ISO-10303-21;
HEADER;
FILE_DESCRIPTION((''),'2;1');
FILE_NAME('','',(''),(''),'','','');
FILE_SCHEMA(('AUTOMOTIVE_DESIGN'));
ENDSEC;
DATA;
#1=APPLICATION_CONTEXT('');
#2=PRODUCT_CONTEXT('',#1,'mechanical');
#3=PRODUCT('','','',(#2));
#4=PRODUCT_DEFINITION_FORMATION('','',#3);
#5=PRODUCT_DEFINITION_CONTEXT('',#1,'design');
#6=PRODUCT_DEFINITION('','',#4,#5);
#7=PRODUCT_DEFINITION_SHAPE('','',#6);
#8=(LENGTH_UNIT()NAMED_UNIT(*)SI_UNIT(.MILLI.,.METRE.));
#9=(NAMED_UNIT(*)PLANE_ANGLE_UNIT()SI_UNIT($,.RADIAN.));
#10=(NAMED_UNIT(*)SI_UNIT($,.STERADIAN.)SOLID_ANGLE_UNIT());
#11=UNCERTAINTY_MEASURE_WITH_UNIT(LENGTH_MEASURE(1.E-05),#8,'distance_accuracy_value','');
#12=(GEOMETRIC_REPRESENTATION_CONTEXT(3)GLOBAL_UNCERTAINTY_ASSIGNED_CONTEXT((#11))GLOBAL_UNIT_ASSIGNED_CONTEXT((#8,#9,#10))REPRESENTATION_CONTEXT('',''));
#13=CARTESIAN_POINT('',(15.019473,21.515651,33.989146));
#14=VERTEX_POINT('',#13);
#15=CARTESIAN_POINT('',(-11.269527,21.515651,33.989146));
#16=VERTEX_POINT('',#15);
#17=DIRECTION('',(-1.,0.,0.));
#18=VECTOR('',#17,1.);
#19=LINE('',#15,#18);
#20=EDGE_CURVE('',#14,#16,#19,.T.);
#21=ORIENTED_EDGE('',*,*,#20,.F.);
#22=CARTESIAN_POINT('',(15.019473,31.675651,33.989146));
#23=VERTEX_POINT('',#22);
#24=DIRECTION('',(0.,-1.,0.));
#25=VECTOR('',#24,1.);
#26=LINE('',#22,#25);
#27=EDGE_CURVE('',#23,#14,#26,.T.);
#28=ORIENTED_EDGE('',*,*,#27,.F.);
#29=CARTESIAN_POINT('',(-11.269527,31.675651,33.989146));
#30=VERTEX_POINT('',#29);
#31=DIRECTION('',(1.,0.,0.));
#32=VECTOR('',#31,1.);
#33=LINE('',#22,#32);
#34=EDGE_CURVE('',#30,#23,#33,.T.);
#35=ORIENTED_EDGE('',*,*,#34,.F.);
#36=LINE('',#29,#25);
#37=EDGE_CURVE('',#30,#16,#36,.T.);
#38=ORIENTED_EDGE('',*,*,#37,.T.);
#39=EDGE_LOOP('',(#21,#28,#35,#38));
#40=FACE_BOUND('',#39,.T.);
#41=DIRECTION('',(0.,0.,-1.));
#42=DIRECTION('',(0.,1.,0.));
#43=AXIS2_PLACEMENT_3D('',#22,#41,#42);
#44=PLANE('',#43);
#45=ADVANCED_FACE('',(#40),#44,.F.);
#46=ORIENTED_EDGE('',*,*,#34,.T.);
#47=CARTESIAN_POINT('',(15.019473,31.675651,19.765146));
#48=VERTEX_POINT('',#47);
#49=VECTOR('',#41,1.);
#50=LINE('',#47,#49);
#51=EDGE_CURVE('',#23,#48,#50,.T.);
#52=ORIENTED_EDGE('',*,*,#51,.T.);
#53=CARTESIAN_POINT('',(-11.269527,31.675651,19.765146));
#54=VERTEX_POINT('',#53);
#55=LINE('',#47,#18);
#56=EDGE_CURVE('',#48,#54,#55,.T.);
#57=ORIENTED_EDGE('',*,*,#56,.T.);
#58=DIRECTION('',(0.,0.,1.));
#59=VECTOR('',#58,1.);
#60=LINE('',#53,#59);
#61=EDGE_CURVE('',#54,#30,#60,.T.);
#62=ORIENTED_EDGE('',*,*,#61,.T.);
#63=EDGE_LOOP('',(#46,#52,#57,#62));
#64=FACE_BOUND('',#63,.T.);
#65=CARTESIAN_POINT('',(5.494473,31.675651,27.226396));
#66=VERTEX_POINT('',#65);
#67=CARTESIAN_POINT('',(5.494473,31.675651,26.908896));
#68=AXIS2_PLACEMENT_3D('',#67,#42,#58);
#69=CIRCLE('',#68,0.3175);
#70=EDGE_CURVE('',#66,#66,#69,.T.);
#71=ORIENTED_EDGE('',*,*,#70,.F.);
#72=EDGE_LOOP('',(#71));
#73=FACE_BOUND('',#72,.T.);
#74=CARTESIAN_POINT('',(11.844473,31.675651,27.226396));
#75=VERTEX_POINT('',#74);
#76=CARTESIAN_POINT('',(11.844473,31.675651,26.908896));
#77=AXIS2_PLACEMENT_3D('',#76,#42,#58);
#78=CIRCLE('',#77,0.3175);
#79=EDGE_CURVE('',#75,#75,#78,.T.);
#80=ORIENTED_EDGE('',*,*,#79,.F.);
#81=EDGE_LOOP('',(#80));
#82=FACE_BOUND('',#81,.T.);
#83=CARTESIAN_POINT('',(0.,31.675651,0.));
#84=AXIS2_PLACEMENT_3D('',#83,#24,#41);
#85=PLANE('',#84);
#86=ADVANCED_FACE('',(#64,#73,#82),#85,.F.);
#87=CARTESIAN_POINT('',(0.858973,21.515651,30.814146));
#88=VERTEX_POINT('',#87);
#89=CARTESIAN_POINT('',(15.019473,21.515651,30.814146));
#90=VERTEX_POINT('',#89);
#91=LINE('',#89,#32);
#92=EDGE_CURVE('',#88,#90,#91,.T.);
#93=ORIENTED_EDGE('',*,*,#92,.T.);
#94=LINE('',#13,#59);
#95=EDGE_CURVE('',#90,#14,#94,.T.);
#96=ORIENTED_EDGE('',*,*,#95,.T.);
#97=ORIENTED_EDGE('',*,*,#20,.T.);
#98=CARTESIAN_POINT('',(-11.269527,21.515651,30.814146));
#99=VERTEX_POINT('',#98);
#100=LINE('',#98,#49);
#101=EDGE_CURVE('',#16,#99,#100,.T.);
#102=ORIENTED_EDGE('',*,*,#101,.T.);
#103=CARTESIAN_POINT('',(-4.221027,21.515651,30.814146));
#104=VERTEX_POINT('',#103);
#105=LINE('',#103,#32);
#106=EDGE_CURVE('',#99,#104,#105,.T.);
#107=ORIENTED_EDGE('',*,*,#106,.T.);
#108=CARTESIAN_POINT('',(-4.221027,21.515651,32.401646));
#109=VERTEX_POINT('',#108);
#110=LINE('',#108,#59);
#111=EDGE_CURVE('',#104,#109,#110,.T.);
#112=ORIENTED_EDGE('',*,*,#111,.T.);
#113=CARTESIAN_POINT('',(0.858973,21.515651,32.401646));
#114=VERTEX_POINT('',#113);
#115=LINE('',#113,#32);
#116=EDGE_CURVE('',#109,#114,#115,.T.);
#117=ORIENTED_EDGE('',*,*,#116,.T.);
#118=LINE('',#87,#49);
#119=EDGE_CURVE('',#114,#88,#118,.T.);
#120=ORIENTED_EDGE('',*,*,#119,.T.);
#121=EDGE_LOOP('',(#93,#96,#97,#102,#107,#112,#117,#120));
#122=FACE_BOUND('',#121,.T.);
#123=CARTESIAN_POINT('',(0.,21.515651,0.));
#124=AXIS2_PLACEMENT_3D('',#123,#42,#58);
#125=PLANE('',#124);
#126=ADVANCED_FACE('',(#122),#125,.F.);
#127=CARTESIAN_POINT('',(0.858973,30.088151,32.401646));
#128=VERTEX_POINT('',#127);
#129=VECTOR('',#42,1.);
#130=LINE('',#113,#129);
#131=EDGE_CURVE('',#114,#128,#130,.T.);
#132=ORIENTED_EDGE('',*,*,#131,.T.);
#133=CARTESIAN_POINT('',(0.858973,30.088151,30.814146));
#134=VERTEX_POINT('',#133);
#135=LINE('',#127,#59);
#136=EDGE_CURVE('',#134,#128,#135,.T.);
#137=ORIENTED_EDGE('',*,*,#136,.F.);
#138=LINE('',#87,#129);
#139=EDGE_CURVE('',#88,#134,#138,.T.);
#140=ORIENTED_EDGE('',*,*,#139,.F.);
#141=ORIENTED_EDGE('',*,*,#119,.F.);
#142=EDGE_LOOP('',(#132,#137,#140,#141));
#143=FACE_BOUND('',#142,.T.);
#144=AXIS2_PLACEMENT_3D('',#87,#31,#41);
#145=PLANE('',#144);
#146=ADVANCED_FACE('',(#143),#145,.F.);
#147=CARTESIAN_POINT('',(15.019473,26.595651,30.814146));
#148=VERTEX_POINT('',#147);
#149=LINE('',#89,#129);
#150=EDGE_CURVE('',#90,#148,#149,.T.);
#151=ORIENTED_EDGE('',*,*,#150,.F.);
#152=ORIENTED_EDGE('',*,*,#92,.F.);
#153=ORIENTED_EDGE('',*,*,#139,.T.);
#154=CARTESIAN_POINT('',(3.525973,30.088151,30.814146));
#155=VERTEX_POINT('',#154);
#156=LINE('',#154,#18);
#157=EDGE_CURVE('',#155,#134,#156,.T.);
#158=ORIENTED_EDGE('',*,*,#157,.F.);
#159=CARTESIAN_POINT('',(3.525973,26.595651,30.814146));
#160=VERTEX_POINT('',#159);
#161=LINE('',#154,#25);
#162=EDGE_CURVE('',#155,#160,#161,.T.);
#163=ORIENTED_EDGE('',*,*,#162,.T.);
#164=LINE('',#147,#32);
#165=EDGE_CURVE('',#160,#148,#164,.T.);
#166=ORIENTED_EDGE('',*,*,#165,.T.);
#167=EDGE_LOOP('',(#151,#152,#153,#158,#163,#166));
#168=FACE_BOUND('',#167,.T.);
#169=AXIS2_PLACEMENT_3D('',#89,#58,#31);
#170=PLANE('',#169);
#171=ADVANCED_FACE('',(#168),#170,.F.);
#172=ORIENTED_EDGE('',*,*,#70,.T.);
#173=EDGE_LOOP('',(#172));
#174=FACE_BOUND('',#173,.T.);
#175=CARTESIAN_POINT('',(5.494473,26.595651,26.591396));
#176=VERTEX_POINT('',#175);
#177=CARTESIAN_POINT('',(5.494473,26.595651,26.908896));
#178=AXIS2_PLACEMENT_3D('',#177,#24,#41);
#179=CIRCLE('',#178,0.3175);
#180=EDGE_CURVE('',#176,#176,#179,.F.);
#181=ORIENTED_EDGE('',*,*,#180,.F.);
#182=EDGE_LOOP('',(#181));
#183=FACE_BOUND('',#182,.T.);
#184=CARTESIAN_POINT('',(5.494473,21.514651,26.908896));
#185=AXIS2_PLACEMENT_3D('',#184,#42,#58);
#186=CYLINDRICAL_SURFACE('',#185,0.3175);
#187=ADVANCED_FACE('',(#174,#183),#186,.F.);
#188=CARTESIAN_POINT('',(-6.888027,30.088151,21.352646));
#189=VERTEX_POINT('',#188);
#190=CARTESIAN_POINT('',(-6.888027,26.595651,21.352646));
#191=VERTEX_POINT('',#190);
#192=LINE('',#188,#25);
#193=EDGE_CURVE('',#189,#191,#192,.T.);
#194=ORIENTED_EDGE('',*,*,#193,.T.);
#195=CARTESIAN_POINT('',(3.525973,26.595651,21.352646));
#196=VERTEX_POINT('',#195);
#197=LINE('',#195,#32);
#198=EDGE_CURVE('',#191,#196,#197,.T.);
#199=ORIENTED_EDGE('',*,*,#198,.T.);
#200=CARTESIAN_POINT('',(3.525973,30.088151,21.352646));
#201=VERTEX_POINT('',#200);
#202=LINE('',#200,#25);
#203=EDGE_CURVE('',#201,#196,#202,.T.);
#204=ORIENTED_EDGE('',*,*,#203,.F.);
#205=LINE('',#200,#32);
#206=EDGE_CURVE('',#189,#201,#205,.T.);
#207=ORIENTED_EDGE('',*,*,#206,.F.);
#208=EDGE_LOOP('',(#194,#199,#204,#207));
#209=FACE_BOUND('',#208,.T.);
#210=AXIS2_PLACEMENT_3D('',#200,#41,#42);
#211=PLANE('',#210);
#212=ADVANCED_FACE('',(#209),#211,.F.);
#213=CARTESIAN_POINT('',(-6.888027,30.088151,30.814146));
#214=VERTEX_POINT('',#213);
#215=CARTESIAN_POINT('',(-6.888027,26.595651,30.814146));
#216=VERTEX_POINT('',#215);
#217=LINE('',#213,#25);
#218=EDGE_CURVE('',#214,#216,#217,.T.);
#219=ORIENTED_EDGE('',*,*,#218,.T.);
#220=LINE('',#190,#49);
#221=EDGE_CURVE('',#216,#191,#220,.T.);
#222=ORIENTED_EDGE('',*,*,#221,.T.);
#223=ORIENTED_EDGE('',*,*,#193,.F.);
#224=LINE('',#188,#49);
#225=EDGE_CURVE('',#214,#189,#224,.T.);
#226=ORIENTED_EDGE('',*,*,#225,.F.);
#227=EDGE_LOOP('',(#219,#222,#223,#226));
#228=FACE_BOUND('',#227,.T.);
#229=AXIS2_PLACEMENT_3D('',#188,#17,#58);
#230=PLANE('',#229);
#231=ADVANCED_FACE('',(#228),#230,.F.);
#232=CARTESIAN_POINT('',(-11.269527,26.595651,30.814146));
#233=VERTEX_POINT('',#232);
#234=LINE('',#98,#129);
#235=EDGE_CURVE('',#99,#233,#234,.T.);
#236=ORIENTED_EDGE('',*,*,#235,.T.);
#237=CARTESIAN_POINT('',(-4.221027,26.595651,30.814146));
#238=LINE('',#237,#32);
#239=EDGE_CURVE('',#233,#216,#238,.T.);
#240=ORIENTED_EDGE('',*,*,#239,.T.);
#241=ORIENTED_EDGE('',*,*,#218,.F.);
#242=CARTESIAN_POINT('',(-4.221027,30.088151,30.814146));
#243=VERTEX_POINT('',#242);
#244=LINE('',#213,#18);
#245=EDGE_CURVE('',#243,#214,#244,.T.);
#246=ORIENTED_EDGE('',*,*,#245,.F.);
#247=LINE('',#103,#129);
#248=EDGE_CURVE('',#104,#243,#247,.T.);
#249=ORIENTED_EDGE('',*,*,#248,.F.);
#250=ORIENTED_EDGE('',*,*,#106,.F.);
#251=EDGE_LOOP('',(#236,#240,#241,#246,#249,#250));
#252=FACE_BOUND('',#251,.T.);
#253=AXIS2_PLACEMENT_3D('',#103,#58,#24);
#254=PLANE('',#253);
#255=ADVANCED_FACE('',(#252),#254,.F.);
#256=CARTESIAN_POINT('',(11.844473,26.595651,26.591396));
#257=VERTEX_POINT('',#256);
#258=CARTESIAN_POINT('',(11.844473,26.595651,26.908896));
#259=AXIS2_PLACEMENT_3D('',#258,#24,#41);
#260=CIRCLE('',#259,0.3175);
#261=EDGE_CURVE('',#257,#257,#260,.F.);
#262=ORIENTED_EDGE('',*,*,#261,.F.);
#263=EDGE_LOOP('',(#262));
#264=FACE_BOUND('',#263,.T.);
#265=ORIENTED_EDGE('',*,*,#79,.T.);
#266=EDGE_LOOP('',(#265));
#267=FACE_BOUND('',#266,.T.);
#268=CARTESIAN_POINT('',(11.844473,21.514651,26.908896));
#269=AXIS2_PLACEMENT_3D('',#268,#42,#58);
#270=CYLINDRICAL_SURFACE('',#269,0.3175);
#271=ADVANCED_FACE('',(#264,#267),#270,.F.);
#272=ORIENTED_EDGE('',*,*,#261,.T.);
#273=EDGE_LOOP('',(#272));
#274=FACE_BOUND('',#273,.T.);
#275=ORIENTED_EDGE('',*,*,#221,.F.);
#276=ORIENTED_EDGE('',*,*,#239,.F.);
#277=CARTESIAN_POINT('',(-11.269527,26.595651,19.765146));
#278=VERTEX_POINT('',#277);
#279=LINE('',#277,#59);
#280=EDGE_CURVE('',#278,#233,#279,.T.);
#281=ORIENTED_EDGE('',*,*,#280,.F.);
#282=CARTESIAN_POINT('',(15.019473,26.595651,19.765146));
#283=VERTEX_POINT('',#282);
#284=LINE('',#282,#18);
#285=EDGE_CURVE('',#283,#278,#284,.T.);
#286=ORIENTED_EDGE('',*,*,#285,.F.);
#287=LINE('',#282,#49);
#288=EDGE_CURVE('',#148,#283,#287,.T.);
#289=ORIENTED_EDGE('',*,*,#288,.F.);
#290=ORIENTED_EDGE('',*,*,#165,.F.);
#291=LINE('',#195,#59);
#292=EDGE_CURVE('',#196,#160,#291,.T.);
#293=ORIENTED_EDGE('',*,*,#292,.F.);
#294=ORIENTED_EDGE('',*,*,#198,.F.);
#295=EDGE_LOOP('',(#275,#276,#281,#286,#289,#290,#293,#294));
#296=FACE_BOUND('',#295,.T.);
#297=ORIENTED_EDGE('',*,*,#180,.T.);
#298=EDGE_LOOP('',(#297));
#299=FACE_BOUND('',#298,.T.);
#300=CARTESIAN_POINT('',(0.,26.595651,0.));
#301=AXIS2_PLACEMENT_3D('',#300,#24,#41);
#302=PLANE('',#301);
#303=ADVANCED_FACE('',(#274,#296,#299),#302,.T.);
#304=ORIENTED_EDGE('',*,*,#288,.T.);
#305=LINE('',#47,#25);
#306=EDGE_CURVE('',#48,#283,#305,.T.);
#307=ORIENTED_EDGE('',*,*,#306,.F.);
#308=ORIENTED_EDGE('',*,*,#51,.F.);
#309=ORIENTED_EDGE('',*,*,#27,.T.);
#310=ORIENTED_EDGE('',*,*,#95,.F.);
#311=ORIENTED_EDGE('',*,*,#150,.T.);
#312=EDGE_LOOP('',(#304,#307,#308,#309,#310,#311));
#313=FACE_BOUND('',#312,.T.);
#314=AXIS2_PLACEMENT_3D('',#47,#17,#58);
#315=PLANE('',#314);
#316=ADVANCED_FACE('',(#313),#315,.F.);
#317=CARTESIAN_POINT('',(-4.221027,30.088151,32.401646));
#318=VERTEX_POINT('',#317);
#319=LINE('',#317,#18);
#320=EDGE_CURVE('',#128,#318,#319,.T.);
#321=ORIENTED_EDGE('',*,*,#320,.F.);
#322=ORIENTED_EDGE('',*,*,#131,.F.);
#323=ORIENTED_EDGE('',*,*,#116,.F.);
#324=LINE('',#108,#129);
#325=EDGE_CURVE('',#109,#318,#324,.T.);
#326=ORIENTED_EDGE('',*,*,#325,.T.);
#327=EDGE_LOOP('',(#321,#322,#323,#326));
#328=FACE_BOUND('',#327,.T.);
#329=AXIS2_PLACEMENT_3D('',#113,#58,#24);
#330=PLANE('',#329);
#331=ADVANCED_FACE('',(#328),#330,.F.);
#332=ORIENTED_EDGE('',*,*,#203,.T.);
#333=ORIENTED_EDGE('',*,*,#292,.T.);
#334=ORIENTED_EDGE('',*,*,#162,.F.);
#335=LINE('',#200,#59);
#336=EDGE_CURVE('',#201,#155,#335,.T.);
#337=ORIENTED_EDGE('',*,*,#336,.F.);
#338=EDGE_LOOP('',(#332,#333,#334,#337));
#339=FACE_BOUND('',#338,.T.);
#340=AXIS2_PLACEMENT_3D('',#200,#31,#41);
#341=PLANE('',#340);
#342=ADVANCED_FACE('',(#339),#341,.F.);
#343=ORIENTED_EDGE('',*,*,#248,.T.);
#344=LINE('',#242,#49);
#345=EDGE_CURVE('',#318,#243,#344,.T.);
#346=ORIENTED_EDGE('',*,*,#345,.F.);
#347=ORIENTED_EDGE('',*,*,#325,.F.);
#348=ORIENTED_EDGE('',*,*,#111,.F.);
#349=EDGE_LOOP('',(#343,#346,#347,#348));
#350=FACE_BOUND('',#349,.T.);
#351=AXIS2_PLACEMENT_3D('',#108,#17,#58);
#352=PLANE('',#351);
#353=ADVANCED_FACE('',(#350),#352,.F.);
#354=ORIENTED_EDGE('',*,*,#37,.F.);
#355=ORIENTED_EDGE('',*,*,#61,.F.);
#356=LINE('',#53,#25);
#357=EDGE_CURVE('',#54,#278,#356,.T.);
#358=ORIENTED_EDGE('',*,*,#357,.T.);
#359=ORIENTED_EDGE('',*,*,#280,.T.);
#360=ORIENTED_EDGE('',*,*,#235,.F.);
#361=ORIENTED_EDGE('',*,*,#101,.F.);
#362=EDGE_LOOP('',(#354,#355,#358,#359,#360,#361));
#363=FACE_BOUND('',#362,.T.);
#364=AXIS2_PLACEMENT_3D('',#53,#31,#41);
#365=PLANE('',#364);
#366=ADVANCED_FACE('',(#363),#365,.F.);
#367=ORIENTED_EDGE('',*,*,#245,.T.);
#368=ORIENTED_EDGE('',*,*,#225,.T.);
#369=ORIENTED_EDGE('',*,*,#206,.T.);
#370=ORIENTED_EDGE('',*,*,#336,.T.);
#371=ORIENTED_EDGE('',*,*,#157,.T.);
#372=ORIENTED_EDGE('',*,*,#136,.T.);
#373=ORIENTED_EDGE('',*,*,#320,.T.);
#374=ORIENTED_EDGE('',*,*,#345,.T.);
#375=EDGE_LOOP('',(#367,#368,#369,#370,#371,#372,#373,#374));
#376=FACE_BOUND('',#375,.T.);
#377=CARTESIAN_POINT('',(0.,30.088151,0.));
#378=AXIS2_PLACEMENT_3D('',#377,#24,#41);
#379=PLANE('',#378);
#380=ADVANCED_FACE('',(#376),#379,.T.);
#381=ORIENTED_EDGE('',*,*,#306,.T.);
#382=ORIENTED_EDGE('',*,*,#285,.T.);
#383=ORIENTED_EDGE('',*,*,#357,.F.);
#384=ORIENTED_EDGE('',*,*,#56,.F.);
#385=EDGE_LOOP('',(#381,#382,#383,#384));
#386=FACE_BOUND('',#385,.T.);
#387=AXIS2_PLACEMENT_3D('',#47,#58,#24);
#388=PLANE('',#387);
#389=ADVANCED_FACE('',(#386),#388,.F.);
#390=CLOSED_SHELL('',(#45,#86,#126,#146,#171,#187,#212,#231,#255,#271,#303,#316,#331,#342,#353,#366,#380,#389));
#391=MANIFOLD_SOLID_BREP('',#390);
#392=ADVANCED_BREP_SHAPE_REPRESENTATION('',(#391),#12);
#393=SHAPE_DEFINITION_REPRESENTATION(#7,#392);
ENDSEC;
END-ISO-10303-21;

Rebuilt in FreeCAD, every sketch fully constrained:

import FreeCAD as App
import Part
import Sketcher
from FreeCAD import Vector
Q = App.Units.Quantity


def add_polygon(sketch, points):
    """Adds a closed chain of lines whose ends are joined by coincident constraints."""
    first, n = sketch.GeometryCount, len(points)
    for a, b in zip(points, points[1:] + points[:1]):
        sketch.addGeometry(Part.LineSegment(App.Vector(*a, 0), App.Vector(*b, 0)), False)
    for i in range(n):
        sketch.addConstraint(Sketcher.Constraint("Coincident", first + i, 2, first + (i + 1) % n, 1))

doc = App.newDocument("Part")
params = doc.addObject("Spreadsheet::Sheet", "Params")
for row, (alias, value) in enumerate([
    ("sketch1_height", "0.56 in"),
    ("sketch1_width", "1.035 in"),
    ("pad1_length", "0.2 in"),
    ("sketch2_width", "0.2 in"),
    ("sketch2_width2", "1.035 in"),
    ("sketch2_height", "0.125 in"),
    ("sketch2_height2", "0.0625 in"),
    ("pad2_length", "0.2 in"),
    ("sketch3_width", "0.2 in"),
    ("sketch3_width2", "0.41 in"),
    ("sketch3_height", "0.0625 in"),
    ("pocket1_length", "0.1375 in"),
    ("sketch4_diameter", "0.025 in"),
    ("sketch5_diameter", "0.025 in"),
], start=1):
    params.set(f"A{row}", alias)
    params.set(f"B{row}", "=" + value)
    params.setAlias(f"B{row}", alias)

body = doc.addObject("PartDesign::Body", "Body")

# Sketch on XZ plane
sketch1 = body.newObject("Sketcher::SketchObject", "Sketch")
sketch1.AttachmentSupport = (doc.getObject("XZ_Plane"), [""])
sketch1.MapMode = "FlatFace"
sketch1.AttachmentOffset = App.Placement(Vector(0, 0, -26.595651), App.Rotation())
add_polygon(sketch1, [(-11.269527, 19.765146), (-11.269527, 33.989146), (15.019473, 33.989146), (15.019473, 19.765146)])  # lines 0-3
sketch1.addConstraint(Sketcher.Constraint("Vertical", 0))
sketch1.addConstraint(Sketcher.Constraint("Horizontal", 1))
sketch1.addConstraint(Sketcher.Constraint("Vertical", 2))
sketch1.addConstraint(Sketcher.Constraint("Horizontal", 3))
sketch1.addConstraint(Sketcher.Constraint("DistanceY", 0, 1, 0, 2, Q("0.56 in")))
sketch1.addConstraint(Sketcher.Constraint("DistanceX", 1, 1, 1, 2, Q("1.035 in")))
sketch1.addConstraint(Sketcher.Constraint("DistanceX", 0, 2, -1, 1, 11.269527))
sketch1.addConstraint(Sketcher.Constraint("DistanceY", -1, 1, 0, 2, 33.989146))
sketch1.setExpression("Constraints[8]", "Params.sketch1_height")
sketch1.setExpression("Constraints[9]", "Params.sketch1_width")
pad1 = body.newObject("PartDesign::Pad", "Pad")
pad1.Profile = sketch1
pad1.setExpression("Length", "Params.pad1_length")
pad1.Reversed = True

# Sketch on XZ plane
sketch2 = body.newObject("Sketcher::SketchObject", "Sketch001")
sketch2.AttachmentSupport = (doc.getObject("XZ_Plane"), [""])
sketch2.MapMode = "FlatFace"
sketch2.AttachmentOffset = App.Placement(Vector(0, 0, -26.595651), App.Rotation())
add_polygon(sketch2, [(-11.269527, 33.989146), (-11.269527, 30.814146), (-4.221027, 30.814146), (-4.221027, 32.401646), (0.858973, 32.401646), (0.858973, 30.814146), (15.019473, 30.814146), (15.019473, 33.989146)])  # lines 0-7
sketch2.addConstraint(Sketcher.Constraint("Vertical", 0))
sketch2.addConstraint(Sketcher.Constraint("Horizontal", 1))
sketch2.addConstraint(Sketcher.Constraint("Vertical", 2))
sketch2.addConstraint(Sketcher.Constraint("Horizontal", 3))
sketch2.addConstraint(Sketcher.Constraint("Vertical", 4))
sketch2.addConstraint(Sketcher.Constraint("Horizontal", 5))
sketch2.addConstraint(Sketcher.Constraint("Vertical", 6))
sketch2.addConstraint(Sketcher.Constraint("Horizontal", 7))
sketch2.addConstraint(Sketcher.Constraint("Horizontal", 1, 2, 4, 2))
sketch2.addConstraint(Sketcher.Constraint("DistanceX", 3, 1, 3, 2, Q("0.2 in")))
sketch2.addConstraint(Sketcher.Constraint("DistanceX", 7, 2, 7, 1, Q("1.035 in")))
sketch2.addConstraint(Sketcher.Constraint("DistanceY", 0, 2, 0, 1, Q("0.125 in")))
sketch2.addConstraint(Sketcher.Constraint("DistanceY", 2, 1, 2, 2, Q("0.0625 in")))
sketch2.addConstraint(Sketcher.Constraint("DistanceX", 1, 1, 1, 2, Q("0.2775 in")))
sketch2.addConstraint(Sketcher.Constraint("DistanceX", 0, 2, -1, 1, 11.269527))
sketch2.addConstraint(Sketcher.Constraint("DistanceY", -1, 1, 0, 2, 30.814146))
sketch2.setExpression("Constraints[17]", "Params.sketch2_width")
sketch2.setExpression("Constraints[18]", "Params.sketch2_width2")
sketch2.setExpression("Constraints[19]", "Params.sketch2_height")
sketch2.setExpression("Constraints[20]", "Params.sketch2_height2")
pad2 = body.newObject("PartDesign::Pad", "Pad001")
pad2.Profile = sketch2
pad2.setExpression("Length", "Params.pad2_length")

# Sketch on XZ plane
sketch3 = body.newObject("Sketcher::SketchObject", "Sketch002")
sketch3.AttachmentSupport = (doc.getObject("XZ_Plane"), [""])
sketch3.MapMode = "FlatFace"
sketch3.AttachmentOffset = App.Placement(Vector(0, 0, -26.595651), App.Rotation())
add_polygon(sketch3, [(-4.221027, 32.401646), (-4.221027, 30.814146), (-6.888027, 30.814146), (-6.888027, 21.352646), (3.525973, 21.352646), (3.525973, 30.814146), (0.858973, 30.814146), (0.858973, 32.401646)])  # lines 0-7
sketch3.addConstraint(Sketcher.Constraint("Vertical", 0))
sketch3.addConstraint(Sketcher.Constraint("Horizontal", 1))
sketch3.addConstraint(Sketcher.Constraint("Vertical", 2))
sketch3.addConstraint(Sketcher.Constraint("Horizontal", 3))
sketch3.addConstraint(Sketcher.Constraint("Vertical", 4))
sketch3.addConstraint(Sketcher.Constraint("Horizontal", 5))
sketch3.addConstraint(Sketcher.Constraint("Vertical", 6))
sketch3.addConstraint(Sketcher.Constraint("Horizontal", 7))
sketch3.addConstraint(Sketcher.Constraint("Horizontal", 1, 2, 4, 2))
sketch3.addConstraint(Sketcher.Constraint("Equal", 1, 5))
sketch3.addConstraint(Sketcher.Constraint("DistanceX", 7, 2, 7, 1, Q("0.2 in")))
sketch3.addConstraint(Sketcher.Constraint("DistanceX", 3, 1, 3, 2, Q("0.41 in")))
sketch3.addConstraint(Sketcher.Constraint("DistanceY", 0, 2, 0, 1, Q("0.0625 in")))
sketch3.addConstraint(Sketcher.Constraint("DistanceY", 2, 2, 2, 1, Q("0.3725 in")))
sketch3.addConstraint(Sketcher.Constraint("DistanceX", 0, 2, -1, 1, 4.221027))
sketch3.addConstraint(Sketcher.Constraint("DistanceY", -1, 1, 0, 2, 30.814146))
sketch3.setExpression("Constraints[18]", "Params.sketch3_width")
sketch3.setExpression("Constraints[19]", "Params.sketch3_width2")
sketch3.setExpression("Constraints[20]", "Params.sketch3_height")
pocket1 = body.newObject("PartDesign::Pocket", "Pocket")
pocket1.Profile = sketch3
pocket1.setExpression("Length", "Params.pocket1_length")

# Sketch on XZ plane
sketch4 = body.newObject("Sketcher::SketchObject", "Sketch003")
sketch4.AttachmentSupport = (doc.getObject("XZ_Plane"), [""])
sketch4.MapMode = "FlatFace"
sketch4.AttachmentOffset = App.Placement(Vector(0, 0, -31.675651), App.Rotation())
sketch4.addGeometry(Part.Circle(Vector(5.494473, 26.908896, 0), Vector(0, 0, 1), 0.3175), False)
sketch4.addConstraint(Sketcher.Constraint("Diameter", 0, Q("0.025 in")))
sketch4.addConstraint(Sketcher.Constraint("DistanceX", -1, 1, 0, 3, 5.494473))
sketch4.addConstraint(Sketcher.Constraint("DistanceY", -1, 1, 0, 3, 26.908896))
sketch4.setExpression("Constraints[0]", "Params.sketch4_diameter")
pocket2 = body.newObject("PartDesign::Pocket", "Pocket001")
pocket2.Profile = sketch4
pocket2.Type = "UpToFirst"
pocket2.Reversed = True

# Sketch on XZ plane
sketch5 = body.newObject("Sketcher::SketchObject", "Sketch004")
sketch5.AttachmentSupport = (doc.getObject("XZ_Plane"), [""])
sketch5.MapMode = "FlatFace"
sketch5.AttachmentOffset = App.Placement(Vector(0, 0, -31.675651), App.Rotation())
sketch5.addGeometry(Part.Circle(Vector(11.844473, 26.908896, 0), Vector(0, 0, 1), 0.3175), False)
sketch5.addConstraint(Sketcher.Constraint("Diameter", 0, Q("0.025 in")))
sketch5.addConstraint(Sketcher.Constraint("DistanceX", -1, 1, 0, 3, 11.844473))
sketch5.addConstraint(Sketcher.Constraint("DistanceY", -1, 1, 0, 3, 26.908896))
sketch5.setExpression("Constraints[0]", "Params.sketch5_diameter")
pocket3 = body.newObject("PartDesign::Pocket", "Pocket002")
pocket3.Profile = sketch5
pocket3.Type = "UpToFirst"
pocket3.Reversed = True

doc.recompute()
